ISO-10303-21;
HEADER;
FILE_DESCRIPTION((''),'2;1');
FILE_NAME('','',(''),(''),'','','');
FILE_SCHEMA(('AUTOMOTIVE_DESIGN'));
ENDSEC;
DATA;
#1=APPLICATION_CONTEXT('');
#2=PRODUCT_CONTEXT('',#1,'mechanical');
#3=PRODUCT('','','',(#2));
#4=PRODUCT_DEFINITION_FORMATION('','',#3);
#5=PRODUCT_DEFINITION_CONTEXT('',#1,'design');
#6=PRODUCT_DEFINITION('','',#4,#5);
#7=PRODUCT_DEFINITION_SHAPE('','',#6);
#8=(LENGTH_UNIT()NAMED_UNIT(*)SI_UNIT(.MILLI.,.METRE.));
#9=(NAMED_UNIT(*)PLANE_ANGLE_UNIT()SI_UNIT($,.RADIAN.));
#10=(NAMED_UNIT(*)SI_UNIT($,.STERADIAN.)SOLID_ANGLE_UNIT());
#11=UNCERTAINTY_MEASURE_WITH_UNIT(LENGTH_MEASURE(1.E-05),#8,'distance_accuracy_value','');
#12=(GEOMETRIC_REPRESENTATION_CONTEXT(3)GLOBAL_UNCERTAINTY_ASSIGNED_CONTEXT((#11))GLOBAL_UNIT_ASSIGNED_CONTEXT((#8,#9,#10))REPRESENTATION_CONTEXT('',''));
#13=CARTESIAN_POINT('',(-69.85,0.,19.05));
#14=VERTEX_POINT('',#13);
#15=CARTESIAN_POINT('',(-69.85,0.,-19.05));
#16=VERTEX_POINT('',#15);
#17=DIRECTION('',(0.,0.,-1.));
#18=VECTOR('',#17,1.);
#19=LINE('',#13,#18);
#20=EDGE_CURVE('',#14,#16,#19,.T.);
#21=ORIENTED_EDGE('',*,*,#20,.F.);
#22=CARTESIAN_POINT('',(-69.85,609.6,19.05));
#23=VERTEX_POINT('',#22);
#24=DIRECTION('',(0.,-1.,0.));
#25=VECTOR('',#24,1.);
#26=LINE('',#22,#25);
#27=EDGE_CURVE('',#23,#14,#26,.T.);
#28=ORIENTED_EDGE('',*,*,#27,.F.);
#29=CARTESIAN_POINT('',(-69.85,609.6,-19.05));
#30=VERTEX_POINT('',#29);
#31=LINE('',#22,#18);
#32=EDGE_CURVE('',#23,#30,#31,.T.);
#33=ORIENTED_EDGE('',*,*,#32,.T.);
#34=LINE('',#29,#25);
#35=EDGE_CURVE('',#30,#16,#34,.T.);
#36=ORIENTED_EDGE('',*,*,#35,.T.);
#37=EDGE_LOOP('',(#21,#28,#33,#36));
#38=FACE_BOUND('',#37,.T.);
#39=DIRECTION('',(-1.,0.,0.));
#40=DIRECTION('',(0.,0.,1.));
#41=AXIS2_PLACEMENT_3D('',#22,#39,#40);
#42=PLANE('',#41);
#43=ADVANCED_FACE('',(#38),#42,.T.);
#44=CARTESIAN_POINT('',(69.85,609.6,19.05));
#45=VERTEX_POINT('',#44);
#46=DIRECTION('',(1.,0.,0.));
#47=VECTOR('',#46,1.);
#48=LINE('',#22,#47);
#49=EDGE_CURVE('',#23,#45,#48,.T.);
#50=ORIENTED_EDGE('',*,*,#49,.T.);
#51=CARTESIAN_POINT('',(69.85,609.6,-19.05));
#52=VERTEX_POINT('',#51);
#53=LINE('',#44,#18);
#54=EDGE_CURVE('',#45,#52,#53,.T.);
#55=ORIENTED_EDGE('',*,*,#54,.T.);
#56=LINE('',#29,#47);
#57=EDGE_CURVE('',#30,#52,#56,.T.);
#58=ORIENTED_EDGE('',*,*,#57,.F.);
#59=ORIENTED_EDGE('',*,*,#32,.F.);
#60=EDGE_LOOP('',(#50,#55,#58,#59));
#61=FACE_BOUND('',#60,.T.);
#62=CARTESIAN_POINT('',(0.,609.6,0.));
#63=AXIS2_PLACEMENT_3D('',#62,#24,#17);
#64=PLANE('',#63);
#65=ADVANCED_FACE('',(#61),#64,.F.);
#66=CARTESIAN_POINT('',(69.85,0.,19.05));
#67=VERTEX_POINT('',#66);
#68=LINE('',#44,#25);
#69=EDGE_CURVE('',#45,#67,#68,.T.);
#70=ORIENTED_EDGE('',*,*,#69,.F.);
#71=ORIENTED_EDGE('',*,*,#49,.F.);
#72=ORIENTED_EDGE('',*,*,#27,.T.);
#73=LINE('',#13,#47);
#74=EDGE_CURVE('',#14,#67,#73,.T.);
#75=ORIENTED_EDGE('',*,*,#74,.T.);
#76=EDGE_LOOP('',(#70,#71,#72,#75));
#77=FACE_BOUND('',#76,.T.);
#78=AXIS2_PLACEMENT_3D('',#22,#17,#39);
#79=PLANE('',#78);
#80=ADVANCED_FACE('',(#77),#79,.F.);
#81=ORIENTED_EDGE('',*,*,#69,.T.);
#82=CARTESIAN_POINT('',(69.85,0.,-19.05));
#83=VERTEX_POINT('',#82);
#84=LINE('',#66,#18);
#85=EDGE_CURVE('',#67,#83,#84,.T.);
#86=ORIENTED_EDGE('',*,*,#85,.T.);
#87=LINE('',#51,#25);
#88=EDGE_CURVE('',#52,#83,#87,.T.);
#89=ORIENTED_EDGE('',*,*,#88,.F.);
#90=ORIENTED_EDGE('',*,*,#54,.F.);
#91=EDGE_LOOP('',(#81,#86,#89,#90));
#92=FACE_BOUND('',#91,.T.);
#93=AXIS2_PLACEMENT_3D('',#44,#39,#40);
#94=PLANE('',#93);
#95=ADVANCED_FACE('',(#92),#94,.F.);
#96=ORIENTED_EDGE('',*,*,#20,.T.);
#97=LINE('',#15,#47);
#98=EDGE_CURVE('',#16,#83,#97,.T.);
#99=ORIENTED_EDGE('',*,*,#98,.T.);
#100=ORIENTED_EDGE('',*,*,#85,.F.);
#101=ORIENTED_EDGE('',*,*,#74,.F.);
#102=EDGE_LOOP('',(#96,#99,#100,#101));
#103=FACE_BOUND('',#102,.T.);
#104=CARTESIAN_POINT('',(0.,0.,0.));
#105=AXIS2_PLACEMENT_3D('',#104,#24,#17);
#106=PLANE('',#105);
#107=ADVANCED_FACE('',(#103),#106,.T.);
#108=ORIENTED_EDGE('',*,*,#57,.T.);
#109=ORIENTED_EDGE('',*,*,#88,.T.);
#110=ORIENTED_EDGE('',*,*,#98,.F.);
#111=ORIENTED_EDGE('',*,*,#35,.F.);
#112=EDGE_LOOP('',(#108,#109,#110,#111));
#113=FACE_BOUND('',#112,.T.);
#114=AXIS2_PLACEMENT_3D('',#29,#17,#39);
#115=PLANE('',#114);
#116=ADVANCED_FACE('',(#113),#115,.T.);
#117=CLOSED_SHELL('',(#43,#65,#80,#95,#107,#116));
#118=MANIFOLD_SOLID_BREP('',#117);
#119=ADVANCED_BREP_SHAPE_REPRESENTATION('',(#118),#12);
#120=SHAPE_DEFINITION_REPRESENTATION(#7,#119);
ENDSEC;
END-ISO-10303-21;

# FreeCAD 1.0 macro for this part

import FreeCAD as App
import Part
import Sketcher
Q = App.Units.Quantity


def add_polygon(sketch, points):
    """Adds a closed chain of lines whose ends are joined by coincident constraints."""
    first, n = sketch.GeometryCount, len(points)
    for a, b in zip(points, points[1:] + points[:1]):
        sketch.addGeometry(Part.LineSegment(App.Vector(*a, 0), App.Vector(*b, 0)), False)
    for i in range(n):
        sketch.addConstraint(Sketcher.Constraint("Coincident", first + i, 2, first + (i + 1) % n, 1))

doc = App.newDocument("Part")
body = doc.addObject("PartDesign::Body", "Body")

# Sketch on XZ plane
sketch1 = body.newObject("Sketcher::SketchObject", "Sketch")
sketch1.AttachmentSupport = (doc.getObject("XZ_Plane"), [""])
sketch1.MapMode = "FlatFace"
add_polygon(sketch1, [(-70, -19), (-70, 19), (70, 19), (70, -19)])  # lines 0-3
sketch1.addConstraint([
    Sketcher.Constraint("Vertical", 0),
    Sketcher.Constraint("Horizontal", 1),
    Sketcher.Constraint("Vertical", 2),
    Sketcher.Constraint("Horizontal", 3),
    Sketcher.Constraint("Symmetric", 0, 2, 2, 2, -1, 1),
    Sketcher.Constraint("DistanceX", 1, 1, 1, 2, Q("5.5 in")),
    Sketcher.Constraint("DistanceY", 0, 1, 0, 2, Q("1.5 in")),
])
pad1 = body.newObject("PartDesign::Pad", "Pad")
pad1.Profile = sketch1
pad1.Length = Q("24 in")
pad1.Reversed = True

doc.recompute()
